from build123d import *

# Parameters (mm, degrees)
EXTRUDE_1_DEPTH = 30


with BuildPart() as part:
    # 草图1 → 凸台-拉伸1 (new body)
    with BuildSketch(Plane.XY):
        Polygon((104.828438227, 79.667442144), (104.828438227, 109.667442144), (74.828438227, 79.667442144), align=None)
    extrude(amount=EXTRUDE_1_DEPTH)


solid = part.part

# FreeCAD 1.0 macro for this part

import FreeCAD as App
import Part
import Sketcher
from FreeCAD import Vector
Q = App.Units.Quantity

doc = App.newDocument("Part")
params = doc.addObject("Spreadsheet::Sheet", "Params")
for row, (alias, value) in enumerate([
    ("sketch1_width", "30 mm"),
    ("pad1_length", "30 mm"),
], start=1):
    params.set(f"A{row}", alias)
    params.set(f"B{row}", "=" + value)
    params.setAlias(f"B{row}", alias)

body = doc.addObject("PartDesign::Body", "Body")

sketch1 = body.newObject("Sketcher::SketchObject", "Sketch")
sketch1.AttachmentSupport = (doc.getObject("XY_Plane"), [""])
sketch1.MapMode = "FlatFace"
sketch1.addGeometry([
    Part.LineSegment(Vector(105, 80, 0), Vector(105, 110, 0)),
    Part.LineSegment(Vector(105, 110, 0), Vector(75, 80, 0)),
    Part.LineSegment(Vector(75, 80, 0), Vector(105, 80, 0)),
], False)
sketch1.addConstraint([
    Sketcher.Constraint("Coincident", 0, 2, 1, 1),
    Sketcher.Constraint("Coincident", 1, 2, 2, 1),
    Sketcher.Constraint("Coincident", 2, 2, 0, 1),
    Sketcher.Constraint("Vertical", 0),
    Sketcher.Constraint("Horizontal", 2),
    Sketcher.Constraint("Equal", 2, 0),
    Sketcher.Constraint("DistanceX", 2, 1, 2, 2, Q("30 mm")),
    Sketcher.Constraint("DistanceX", -1, 1, 0, 2, Q("104.828438 mm")),
    Sketcher.Constraint("DistanceY", -1, 1, 0, 2, Q("109.667442 mm")),
])
sketch1.setExpression("Constraints[6]", "Params.sketch1_width")
pad1 = body.newObject("PartDesign::Pad", "Pad")
pad1.Profile = sketch1
pad1.setExpression("Length", "Params.pad1_length")

doc.recompute()
